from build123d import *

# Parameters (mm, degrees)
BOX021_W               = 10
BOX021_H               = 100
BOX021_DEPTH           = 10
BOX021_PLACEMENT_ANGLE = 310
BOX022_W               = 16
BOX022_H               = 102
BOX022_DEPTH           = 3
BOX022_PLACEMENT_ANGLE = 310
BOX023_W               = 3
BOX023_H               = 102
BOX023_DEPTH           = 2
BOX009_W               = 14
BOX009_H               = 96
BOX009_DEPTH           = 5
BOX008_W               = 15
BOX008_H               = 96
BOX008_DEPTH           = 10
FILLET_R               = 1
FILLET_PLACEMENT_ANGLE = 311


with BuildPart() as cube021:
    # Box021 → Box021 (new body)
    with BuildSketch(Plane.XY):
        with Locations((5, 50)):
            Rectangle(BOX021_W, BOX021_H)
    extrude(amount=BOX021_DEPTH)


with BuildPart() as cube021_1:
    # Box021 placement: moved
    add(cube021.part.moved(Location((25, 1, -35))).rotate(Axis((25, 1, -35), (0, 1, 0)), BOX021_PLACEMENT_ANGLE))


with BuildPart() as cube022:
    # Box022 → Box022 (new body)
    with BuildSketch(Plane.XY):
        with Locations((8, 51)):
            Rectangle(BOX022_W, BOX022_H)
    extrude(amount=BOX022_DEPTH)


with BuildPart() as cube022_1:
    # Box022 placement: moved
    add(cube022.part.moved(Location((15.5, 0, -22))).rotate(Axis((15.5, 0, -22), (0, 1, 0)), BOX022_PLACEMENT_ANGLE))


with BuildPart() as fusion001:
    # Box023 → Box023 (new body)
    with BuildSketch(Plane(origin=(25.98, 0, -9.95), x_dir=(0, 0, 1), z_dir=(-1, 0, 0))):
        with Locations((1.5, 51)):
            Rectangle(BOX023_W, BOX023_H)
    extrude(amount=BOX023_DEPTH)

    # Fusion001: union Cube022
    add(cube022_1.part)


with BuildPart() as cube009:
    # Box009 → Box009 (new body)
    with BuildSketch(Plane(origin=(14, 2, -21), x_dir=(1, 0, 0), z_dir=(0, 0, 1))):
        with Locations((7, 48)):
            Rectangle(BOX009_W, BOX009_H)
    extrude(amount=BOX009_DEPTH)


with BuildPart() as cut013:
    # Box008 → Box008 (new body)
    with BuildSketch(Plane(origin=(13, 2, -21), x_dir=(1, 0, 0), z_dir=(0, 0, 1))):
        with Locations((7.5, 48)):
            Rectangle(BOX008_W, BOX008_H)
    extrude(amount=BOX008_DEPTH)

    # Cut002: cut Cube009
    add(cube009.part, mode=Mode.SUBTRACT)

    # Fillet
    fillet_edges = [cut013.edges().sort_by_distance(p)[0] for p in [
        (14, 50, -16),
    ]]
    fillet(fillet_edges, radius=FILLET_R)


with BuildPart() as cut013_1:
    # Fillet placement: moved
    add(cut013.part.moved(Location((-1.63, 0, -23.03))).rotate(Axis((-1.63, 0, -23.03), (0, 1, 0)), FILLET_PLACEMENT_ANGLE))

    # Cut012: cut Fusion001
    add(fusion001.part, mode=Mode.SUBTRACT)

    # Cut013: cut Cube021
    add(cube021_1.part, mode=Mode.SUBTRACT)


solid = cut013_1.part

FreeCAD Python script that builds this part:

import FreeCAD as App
import Part
import Sketcher
from FreeCAD import Vector


def edges_at(feature, points):
    """Names of the edges that pass closest to the given points."""
    edges = feature.Shape.Edges
    near = lambda p: min(range(len(edges)), key=lambda i: edges[i].distToShape(Part.Vertex(*p))[0])
    return sorted({f"Edge{near(p) + 1}" for p in points})

doc = App.newDocument("Part")
body = doc.addObject("PartDesign::Body", "Body")

sketch1 = body.newObject("Sketcher::SketchObject", "Sketch")
sketch1.AttachmentSupport = (doc.getObject("XY_Plane"), [""])
sketch1.MapMode = "FlatFace"
sketch1.addGeometry(Part.LineSegment(Vector(0, 100, 0), Vector(0, 0, 0)), False)
sketch1.addGeometry(Part.LineSegment(Vector(0, 0, 0), Vector(10, 0, 0)), False)
sketch1.addGeometry(Part.LineSegment(Vector(10, 0, 0), Vector(10, 100, 0)), False)
sketch1.addGeometry(Part.LineSegment(Vector(10, 100, 0), Vector(0, 100, 0)), False)
sketch1.addConstraint(Sketcher.Constraint("Coincident", 0, 2, 1, 1))
sketch1.addConstraint(Sketcher.Constraint("Coincident", 1, 2, 2, 1))
sketch1.addConstraint(Sketcher.Constraint("Coincident", 2, 2, 3, 1))
sketch1.addConstraint(Sketcher.Constraint("Coincident", 3, 2, 0, 1))
sketch1.addConstraint(Sketcher.Constraint("Vertical", 0))
sketch1.addConstraint(Sketcher.Constraint("Horizontal", 1))
sketch1.addConstraint(Sketcher.Constraint("Vertical", 2))
sketch1.addConstraint(Sketcher.Constraint("Horizontal", 3))
sketch1.addConstraint(Sketcher.Constraint("Coincident", 0, 2, -1, 1))
sketch1.addConstraint(Sketcher.Constraint("DistanceX", 1, 1, 1, 2, 10.0))
sketch1.addConstraint(Sketcher.Constraint("DistanceY", 0, 2, 0, 1, 100.0))
pad1 = body.newObject("PartDesign::Pad", "Pad")
pad1.Profile = sketch1
pad1.Length = 10
body2 = doc.addObject("PartDesign::Body", "Body001")
doc.recompute()

body.Placement = App.Placement(Vector(25, 1, -35), App.Rotation(Vector(0, 1, 0), 310))
boolean = body2.newObject("PartDesign::Boolean", "Boolean")
boolean.Type = "Fuse"
boolean.addObjects([body])
body3 = doc.addObject("PartDesign::Body", "Body002")

sketch2 = body3.newObject("Sketcher::SketchObject", "Sketch001")
sketch2.AttachmentSupport = (doc.getObject("XY_Plane002"), [""])
sketch2.MapMode = "FlatFace"
sketch2.addGeometry(Part.LineSegment(Vector(0, 102, 0), Vector(0, 0, 0)), False)
sketch2.addGeometry(Part.LineSegment(Vector(0, 0, 0), Vector(16, 0, 0)), False)
sketch2.addGeometry(Part.LineSegment(Vector(16, 0, 0), Vector(16, 102, 0)), False)
sketch2.addGeometry(Part.LineSegment(Vector(16, 102, 0), Vector(0, 102, 0)), False)
sketch2.addConstraint(Sketcher.Constraint("Coincident", 0, 2, 1, 1))
sketch2.addConstraint(Sketcher.Constraint("Coincident", 1, 2, 2, 1))
sketch2.addConstraint(Sketcher.Constraint("Coincident", 2, 2, 3, 1))
sketch2.addConstraint(Sketcher.Constraint("Coincident", 3, 2, 0, 1))
sketch2.addConstraint(Sketcher.Constraint("Vertical", 0))
sketch2.addConstraint(Sketcher.Constraint("Horizontal", 1))
sketch2.addConstraint(Sketcher.Constraint("Vertical", 2))
sketch2.addConstraint(Sketcher.Constraint("Horizontal", 3))
sketch2.addConstraint(Sketcher.Constraint("Coincident", 0, 2, -1, 1))
sketch2.addConstraint(Sketcher.Constraint("DistanceX", 1, 1, 1, 2, 16.0))
sketch2.addConstraint(Sketcher.Constraint("DistanceY", 0, 2, 0, 1, 102.0))
pad2 = body3.newObject("PartDesign::Pad", "Pad001")
pad2.Profile = sketch2
pad2.Length = 3
body4 = doc.addObject("PartDesign::Body", "Body003")
doc.recompute()

body3.Placement = App.Placement(Vector(15.5, 0, -22), App.Rotation(Vector(0, 1, 0), 310))
boolean2 = body4.newObject("PartDesign::Boolean", "Boolean001")
boolean2.Type = "Fuse"
boolean2.addObjects([body3])
body5 = doc.addObject("PartDesign::Body", "Body004")

sketch3 = body5.newObject("Sketcher::SketchObject", "Sketch002")
sketch3.AttachmentSupport = (doc.getObject("YZ_Plane004"), [""])
sketch3.MapMode = "FlatFace"
sketch3.AttachmentOffset = App.Placement(Vector(0, 0, 25.98), App.Rotation())
sketch3.addGeometry(Part.LineSegment(Vector(102, -9.9, 0), Vector(0, -9.9, 0)), False)
sketch3.addGeometry(Part.LineSegment(Vector(0, -9.9, 0), Vector(0, -7, 0)), False)
sketch3.addGeometry(Part.LineSegment(Vector(0, -7, 0), Vector(102, -7, 0)), False)
sketch3.addGeometry(Part.LineSegment(Vector(102, -7, 0), Vector(102, -9.9, 0)), False)
sketch3.addConstraint(Sketcher.Constraint("Coincident", 0, 2, 1, 1))
sketch3.addConstraint(Sketcher.Constraint("Coincident", 1, 2, 2, 1))
sketch3.addConstraint(Sketcher.Constraint("Coincident", 2, 2, 3, 1))
sketch3.addConstraint(Sketcher.Constraint("Coincident", 3, 2, 0, 1))
sketch3.addConstraint(Sketcher.Constraint("Horizontal", 0))
sketch3.addConstraint(Sketcher.Constraint("Vertical", 1))
sketch3.addConstraint(Sketcher.Constraint("Horizontal", 2))
sketch3.addConstraint(Sketcher.Constraint("Vertical", 3))
sketch3.addConstraint(Sketcher.Constraint("PointOnObject", 0, 2, -2))
sketch3.addConstraint(Sketcher.Constraint("DistanceX", 0, 2, 0, 1, 102.0))
sketch3.addConstraint(Sketcher.Constraint("DistanceY", 1, 1, 1, 2, 3.0))
sketch3.addConstraint(Sketcher.Constraint("DistanceY", 0, 2, -1, 1, 9.95))
pad3 = body5.newObject("PartDesign::Pad", "Pad002")
pad3.Profile = sketch3
pad3.Length = 2
pad3.Reversed = True
doc.recompute()

boolean3 = body5.newObject("PartDesign::Boolean", "Boolean002")
boolean3.Type = "Fuse"
boolean3.addObjects([body4])
body6 = doc.addObject("PartDesign::Body", "Body005")

sketch4 = body6.newObject("Sketcher::SketchObject", "Sketch003")
sketch4.AttachmentSupport = (doc.getObject("XY_Plane005"), [""])
sketch4.MapMode = "FlatFace"
sketch4.AttachmentOffset = App.Placement(Vector(0, 0, -21), App.Rotation())
sketch4.addGeometry(Part.LineSegment(Vector(14, 98, 0), Vector(14, 2, 0)), False)
sketch4.addGeometry(Part.LineSegment(Vector(14, 2, 0), Vector(28, 2, 0)), False)
sketch4.addGeometry(Part.LineSegment(Vector(28, 2, 0), Vector(28, 98, 0)), False)
sketch4.addGeometry(Part.LineSegment(Vector(28, 98, 0), Vector(14, 98, 0)), False)
sketch4.addConstraint(Sketcher.Constraint("Coincident", 0, 2, 1, 1))
sketch4.addConstraint(Sketcher.Constraint("Coincident", 1, 2, 2, 1))
sketch4.addConstraint(Sketcher.Constraint("Coincident", 2, 2, 3, 1))
sketch4.addConstraint(Sketcher.Constraint("Coincident", 3, 2, 0, 1))
sketch4.addConstraint(Sketcher.Constraint("Vertical", 0))
sketch4.addConstraint(Sketcher.Constraint("Horizontal", 1))
sketch4.addConstraint(Sketcher.Constraint("Vertical", 2))
sketch4.addConstraint(Sketcher.Constraint("Horizontal", 3))
sketch4.addConstraint(Sketcher.Constraint("DistanceX", 1, 1, 1, 2, 14.0))
sketch4.addConstraint(Sketcher.Constraint("DistanceY", 0, 2, 0, 1, 96.0))
sketch4.addConstraint(Sketcher.Constraint("DistanceX", -1, 1, 0, 2, 14.0))
sketch4.addConstraint(Sketcher.Constraint("DistanceY", -1, 1, 0, 2, 2.0))
pad4 = body6.newObject("PartDesign::Pad", "Pad003")
pad4.Profile = sketch4
pad4.Length = 5
body7 = doc.addObject("PartDesign::Body", "Body006")

sketch5 = body7.newObject("Sketcher::SketchObject", "Sketch004")
sketch5.AttachmentSupport = (doc.getObject("XY_Plane006"), [""])
sketch5.MapMode = "FlatFace"
sketch5.AttachmentOffset = App.Placement(Vector(0, 0, -21), App.Rotation())
sketch5.addGeometry(Part.LineSegment(Vector(13, 98, 0), Vector(13, 2, 0)), False)
sketch5.addGeometry(Part.LineSegment(Vector(13, 2, 0), Vector(28, 2, 0)), False)
sketch5.addGeometry(Part.LineSegment(Vector(28, 2, 0), Vector(28, 98, 0)), False)
sketch5.addGeometry(Part.LineSegment(Vector(28, 98, 0), Vector(13, 98, 0)), False)
sketch5.addConstraint(Sketcher.Constraint("Coincident", 0, 2, 1, 1))
sketch5.addConstraint(Sketcher.Constraint("Coincident", 1, 2, 2, 1))
sketch5.addConstraint(Sketcher.Constraint("Coincident", 2, 2, 3, 1))
sketch5.addConstraint(Sketcher.Constraint("Coincident", 3, 2, 0, 1))
sketch5.addConstraint(Sketcher.Constraint("Vertical", 0))
sketch5.addConstraint(Sketcher.Constraint("Horizontal", 1))
sketch5.addConstraint(Sketcher.Constraint("Vertical", 2))
sketch5.addConstraint(Sketcher.Constraint("Horizontal", 3))
sketch5.addConstraint(Sketcher.Constraint("DistanceX", 1, 1, 1, 2, 15.0))
sketch5.addConstraint(Sketcher.Constraint("DistanceY", 0, 2, 0, 1, 96.0))
sketch5.addConstraint(Sketcher.Constraint("DistanceX", -1, 1, 0, 2, 13.0))
sketch5.addConstraint(Sketcher.Constraint("DistanceY", -1, 1, 0, 2, 2.0))
pad5 = body7.newObject("PartDesign::Pad", "Pad004")
pad5.Profile = sketch5
pad5.Length = 10
doc.recompute()

boolean4 = body7.newObject("PartDesign::Boolean", "Boolean003")
boolean4.Type = "Cut"
boolean4.addObjects([body6])
doc.recompute()

fillet = body7.newObject("PartDesign::Fillet", "Fillet")
fillet.Base = (boolean4, edges_at(boolean4, [(14, 50, -16)]))
fillet.Radius = 1
body8 = doc.addObject("PartDesign::Body", "Body007")
doc.recompute()

body7.Placement = App.Placement(Vector(-1.63, 0, -23.03), App.Rotation(Vector(0, 1, 0), 311))
boolean5 = body8.newObject("PartDesign::Boolean", "Boolean004")
boolean5.Type = "Fuse"
boolean5.addObjects([body7])
doc.recompute()

boolean6 = body8.newObject("PartDesign::Boolean", "Boolean005")
boolean6.Type = "Cut"
boolean6.addObjects([body5])
doc.recompute()

boolean7 = body8.newObject("PartDesign::Boolean", "Boolean006")
boolean7.Type = "Cut"
boolean7.addObjects([body2])

doc.recompute()
